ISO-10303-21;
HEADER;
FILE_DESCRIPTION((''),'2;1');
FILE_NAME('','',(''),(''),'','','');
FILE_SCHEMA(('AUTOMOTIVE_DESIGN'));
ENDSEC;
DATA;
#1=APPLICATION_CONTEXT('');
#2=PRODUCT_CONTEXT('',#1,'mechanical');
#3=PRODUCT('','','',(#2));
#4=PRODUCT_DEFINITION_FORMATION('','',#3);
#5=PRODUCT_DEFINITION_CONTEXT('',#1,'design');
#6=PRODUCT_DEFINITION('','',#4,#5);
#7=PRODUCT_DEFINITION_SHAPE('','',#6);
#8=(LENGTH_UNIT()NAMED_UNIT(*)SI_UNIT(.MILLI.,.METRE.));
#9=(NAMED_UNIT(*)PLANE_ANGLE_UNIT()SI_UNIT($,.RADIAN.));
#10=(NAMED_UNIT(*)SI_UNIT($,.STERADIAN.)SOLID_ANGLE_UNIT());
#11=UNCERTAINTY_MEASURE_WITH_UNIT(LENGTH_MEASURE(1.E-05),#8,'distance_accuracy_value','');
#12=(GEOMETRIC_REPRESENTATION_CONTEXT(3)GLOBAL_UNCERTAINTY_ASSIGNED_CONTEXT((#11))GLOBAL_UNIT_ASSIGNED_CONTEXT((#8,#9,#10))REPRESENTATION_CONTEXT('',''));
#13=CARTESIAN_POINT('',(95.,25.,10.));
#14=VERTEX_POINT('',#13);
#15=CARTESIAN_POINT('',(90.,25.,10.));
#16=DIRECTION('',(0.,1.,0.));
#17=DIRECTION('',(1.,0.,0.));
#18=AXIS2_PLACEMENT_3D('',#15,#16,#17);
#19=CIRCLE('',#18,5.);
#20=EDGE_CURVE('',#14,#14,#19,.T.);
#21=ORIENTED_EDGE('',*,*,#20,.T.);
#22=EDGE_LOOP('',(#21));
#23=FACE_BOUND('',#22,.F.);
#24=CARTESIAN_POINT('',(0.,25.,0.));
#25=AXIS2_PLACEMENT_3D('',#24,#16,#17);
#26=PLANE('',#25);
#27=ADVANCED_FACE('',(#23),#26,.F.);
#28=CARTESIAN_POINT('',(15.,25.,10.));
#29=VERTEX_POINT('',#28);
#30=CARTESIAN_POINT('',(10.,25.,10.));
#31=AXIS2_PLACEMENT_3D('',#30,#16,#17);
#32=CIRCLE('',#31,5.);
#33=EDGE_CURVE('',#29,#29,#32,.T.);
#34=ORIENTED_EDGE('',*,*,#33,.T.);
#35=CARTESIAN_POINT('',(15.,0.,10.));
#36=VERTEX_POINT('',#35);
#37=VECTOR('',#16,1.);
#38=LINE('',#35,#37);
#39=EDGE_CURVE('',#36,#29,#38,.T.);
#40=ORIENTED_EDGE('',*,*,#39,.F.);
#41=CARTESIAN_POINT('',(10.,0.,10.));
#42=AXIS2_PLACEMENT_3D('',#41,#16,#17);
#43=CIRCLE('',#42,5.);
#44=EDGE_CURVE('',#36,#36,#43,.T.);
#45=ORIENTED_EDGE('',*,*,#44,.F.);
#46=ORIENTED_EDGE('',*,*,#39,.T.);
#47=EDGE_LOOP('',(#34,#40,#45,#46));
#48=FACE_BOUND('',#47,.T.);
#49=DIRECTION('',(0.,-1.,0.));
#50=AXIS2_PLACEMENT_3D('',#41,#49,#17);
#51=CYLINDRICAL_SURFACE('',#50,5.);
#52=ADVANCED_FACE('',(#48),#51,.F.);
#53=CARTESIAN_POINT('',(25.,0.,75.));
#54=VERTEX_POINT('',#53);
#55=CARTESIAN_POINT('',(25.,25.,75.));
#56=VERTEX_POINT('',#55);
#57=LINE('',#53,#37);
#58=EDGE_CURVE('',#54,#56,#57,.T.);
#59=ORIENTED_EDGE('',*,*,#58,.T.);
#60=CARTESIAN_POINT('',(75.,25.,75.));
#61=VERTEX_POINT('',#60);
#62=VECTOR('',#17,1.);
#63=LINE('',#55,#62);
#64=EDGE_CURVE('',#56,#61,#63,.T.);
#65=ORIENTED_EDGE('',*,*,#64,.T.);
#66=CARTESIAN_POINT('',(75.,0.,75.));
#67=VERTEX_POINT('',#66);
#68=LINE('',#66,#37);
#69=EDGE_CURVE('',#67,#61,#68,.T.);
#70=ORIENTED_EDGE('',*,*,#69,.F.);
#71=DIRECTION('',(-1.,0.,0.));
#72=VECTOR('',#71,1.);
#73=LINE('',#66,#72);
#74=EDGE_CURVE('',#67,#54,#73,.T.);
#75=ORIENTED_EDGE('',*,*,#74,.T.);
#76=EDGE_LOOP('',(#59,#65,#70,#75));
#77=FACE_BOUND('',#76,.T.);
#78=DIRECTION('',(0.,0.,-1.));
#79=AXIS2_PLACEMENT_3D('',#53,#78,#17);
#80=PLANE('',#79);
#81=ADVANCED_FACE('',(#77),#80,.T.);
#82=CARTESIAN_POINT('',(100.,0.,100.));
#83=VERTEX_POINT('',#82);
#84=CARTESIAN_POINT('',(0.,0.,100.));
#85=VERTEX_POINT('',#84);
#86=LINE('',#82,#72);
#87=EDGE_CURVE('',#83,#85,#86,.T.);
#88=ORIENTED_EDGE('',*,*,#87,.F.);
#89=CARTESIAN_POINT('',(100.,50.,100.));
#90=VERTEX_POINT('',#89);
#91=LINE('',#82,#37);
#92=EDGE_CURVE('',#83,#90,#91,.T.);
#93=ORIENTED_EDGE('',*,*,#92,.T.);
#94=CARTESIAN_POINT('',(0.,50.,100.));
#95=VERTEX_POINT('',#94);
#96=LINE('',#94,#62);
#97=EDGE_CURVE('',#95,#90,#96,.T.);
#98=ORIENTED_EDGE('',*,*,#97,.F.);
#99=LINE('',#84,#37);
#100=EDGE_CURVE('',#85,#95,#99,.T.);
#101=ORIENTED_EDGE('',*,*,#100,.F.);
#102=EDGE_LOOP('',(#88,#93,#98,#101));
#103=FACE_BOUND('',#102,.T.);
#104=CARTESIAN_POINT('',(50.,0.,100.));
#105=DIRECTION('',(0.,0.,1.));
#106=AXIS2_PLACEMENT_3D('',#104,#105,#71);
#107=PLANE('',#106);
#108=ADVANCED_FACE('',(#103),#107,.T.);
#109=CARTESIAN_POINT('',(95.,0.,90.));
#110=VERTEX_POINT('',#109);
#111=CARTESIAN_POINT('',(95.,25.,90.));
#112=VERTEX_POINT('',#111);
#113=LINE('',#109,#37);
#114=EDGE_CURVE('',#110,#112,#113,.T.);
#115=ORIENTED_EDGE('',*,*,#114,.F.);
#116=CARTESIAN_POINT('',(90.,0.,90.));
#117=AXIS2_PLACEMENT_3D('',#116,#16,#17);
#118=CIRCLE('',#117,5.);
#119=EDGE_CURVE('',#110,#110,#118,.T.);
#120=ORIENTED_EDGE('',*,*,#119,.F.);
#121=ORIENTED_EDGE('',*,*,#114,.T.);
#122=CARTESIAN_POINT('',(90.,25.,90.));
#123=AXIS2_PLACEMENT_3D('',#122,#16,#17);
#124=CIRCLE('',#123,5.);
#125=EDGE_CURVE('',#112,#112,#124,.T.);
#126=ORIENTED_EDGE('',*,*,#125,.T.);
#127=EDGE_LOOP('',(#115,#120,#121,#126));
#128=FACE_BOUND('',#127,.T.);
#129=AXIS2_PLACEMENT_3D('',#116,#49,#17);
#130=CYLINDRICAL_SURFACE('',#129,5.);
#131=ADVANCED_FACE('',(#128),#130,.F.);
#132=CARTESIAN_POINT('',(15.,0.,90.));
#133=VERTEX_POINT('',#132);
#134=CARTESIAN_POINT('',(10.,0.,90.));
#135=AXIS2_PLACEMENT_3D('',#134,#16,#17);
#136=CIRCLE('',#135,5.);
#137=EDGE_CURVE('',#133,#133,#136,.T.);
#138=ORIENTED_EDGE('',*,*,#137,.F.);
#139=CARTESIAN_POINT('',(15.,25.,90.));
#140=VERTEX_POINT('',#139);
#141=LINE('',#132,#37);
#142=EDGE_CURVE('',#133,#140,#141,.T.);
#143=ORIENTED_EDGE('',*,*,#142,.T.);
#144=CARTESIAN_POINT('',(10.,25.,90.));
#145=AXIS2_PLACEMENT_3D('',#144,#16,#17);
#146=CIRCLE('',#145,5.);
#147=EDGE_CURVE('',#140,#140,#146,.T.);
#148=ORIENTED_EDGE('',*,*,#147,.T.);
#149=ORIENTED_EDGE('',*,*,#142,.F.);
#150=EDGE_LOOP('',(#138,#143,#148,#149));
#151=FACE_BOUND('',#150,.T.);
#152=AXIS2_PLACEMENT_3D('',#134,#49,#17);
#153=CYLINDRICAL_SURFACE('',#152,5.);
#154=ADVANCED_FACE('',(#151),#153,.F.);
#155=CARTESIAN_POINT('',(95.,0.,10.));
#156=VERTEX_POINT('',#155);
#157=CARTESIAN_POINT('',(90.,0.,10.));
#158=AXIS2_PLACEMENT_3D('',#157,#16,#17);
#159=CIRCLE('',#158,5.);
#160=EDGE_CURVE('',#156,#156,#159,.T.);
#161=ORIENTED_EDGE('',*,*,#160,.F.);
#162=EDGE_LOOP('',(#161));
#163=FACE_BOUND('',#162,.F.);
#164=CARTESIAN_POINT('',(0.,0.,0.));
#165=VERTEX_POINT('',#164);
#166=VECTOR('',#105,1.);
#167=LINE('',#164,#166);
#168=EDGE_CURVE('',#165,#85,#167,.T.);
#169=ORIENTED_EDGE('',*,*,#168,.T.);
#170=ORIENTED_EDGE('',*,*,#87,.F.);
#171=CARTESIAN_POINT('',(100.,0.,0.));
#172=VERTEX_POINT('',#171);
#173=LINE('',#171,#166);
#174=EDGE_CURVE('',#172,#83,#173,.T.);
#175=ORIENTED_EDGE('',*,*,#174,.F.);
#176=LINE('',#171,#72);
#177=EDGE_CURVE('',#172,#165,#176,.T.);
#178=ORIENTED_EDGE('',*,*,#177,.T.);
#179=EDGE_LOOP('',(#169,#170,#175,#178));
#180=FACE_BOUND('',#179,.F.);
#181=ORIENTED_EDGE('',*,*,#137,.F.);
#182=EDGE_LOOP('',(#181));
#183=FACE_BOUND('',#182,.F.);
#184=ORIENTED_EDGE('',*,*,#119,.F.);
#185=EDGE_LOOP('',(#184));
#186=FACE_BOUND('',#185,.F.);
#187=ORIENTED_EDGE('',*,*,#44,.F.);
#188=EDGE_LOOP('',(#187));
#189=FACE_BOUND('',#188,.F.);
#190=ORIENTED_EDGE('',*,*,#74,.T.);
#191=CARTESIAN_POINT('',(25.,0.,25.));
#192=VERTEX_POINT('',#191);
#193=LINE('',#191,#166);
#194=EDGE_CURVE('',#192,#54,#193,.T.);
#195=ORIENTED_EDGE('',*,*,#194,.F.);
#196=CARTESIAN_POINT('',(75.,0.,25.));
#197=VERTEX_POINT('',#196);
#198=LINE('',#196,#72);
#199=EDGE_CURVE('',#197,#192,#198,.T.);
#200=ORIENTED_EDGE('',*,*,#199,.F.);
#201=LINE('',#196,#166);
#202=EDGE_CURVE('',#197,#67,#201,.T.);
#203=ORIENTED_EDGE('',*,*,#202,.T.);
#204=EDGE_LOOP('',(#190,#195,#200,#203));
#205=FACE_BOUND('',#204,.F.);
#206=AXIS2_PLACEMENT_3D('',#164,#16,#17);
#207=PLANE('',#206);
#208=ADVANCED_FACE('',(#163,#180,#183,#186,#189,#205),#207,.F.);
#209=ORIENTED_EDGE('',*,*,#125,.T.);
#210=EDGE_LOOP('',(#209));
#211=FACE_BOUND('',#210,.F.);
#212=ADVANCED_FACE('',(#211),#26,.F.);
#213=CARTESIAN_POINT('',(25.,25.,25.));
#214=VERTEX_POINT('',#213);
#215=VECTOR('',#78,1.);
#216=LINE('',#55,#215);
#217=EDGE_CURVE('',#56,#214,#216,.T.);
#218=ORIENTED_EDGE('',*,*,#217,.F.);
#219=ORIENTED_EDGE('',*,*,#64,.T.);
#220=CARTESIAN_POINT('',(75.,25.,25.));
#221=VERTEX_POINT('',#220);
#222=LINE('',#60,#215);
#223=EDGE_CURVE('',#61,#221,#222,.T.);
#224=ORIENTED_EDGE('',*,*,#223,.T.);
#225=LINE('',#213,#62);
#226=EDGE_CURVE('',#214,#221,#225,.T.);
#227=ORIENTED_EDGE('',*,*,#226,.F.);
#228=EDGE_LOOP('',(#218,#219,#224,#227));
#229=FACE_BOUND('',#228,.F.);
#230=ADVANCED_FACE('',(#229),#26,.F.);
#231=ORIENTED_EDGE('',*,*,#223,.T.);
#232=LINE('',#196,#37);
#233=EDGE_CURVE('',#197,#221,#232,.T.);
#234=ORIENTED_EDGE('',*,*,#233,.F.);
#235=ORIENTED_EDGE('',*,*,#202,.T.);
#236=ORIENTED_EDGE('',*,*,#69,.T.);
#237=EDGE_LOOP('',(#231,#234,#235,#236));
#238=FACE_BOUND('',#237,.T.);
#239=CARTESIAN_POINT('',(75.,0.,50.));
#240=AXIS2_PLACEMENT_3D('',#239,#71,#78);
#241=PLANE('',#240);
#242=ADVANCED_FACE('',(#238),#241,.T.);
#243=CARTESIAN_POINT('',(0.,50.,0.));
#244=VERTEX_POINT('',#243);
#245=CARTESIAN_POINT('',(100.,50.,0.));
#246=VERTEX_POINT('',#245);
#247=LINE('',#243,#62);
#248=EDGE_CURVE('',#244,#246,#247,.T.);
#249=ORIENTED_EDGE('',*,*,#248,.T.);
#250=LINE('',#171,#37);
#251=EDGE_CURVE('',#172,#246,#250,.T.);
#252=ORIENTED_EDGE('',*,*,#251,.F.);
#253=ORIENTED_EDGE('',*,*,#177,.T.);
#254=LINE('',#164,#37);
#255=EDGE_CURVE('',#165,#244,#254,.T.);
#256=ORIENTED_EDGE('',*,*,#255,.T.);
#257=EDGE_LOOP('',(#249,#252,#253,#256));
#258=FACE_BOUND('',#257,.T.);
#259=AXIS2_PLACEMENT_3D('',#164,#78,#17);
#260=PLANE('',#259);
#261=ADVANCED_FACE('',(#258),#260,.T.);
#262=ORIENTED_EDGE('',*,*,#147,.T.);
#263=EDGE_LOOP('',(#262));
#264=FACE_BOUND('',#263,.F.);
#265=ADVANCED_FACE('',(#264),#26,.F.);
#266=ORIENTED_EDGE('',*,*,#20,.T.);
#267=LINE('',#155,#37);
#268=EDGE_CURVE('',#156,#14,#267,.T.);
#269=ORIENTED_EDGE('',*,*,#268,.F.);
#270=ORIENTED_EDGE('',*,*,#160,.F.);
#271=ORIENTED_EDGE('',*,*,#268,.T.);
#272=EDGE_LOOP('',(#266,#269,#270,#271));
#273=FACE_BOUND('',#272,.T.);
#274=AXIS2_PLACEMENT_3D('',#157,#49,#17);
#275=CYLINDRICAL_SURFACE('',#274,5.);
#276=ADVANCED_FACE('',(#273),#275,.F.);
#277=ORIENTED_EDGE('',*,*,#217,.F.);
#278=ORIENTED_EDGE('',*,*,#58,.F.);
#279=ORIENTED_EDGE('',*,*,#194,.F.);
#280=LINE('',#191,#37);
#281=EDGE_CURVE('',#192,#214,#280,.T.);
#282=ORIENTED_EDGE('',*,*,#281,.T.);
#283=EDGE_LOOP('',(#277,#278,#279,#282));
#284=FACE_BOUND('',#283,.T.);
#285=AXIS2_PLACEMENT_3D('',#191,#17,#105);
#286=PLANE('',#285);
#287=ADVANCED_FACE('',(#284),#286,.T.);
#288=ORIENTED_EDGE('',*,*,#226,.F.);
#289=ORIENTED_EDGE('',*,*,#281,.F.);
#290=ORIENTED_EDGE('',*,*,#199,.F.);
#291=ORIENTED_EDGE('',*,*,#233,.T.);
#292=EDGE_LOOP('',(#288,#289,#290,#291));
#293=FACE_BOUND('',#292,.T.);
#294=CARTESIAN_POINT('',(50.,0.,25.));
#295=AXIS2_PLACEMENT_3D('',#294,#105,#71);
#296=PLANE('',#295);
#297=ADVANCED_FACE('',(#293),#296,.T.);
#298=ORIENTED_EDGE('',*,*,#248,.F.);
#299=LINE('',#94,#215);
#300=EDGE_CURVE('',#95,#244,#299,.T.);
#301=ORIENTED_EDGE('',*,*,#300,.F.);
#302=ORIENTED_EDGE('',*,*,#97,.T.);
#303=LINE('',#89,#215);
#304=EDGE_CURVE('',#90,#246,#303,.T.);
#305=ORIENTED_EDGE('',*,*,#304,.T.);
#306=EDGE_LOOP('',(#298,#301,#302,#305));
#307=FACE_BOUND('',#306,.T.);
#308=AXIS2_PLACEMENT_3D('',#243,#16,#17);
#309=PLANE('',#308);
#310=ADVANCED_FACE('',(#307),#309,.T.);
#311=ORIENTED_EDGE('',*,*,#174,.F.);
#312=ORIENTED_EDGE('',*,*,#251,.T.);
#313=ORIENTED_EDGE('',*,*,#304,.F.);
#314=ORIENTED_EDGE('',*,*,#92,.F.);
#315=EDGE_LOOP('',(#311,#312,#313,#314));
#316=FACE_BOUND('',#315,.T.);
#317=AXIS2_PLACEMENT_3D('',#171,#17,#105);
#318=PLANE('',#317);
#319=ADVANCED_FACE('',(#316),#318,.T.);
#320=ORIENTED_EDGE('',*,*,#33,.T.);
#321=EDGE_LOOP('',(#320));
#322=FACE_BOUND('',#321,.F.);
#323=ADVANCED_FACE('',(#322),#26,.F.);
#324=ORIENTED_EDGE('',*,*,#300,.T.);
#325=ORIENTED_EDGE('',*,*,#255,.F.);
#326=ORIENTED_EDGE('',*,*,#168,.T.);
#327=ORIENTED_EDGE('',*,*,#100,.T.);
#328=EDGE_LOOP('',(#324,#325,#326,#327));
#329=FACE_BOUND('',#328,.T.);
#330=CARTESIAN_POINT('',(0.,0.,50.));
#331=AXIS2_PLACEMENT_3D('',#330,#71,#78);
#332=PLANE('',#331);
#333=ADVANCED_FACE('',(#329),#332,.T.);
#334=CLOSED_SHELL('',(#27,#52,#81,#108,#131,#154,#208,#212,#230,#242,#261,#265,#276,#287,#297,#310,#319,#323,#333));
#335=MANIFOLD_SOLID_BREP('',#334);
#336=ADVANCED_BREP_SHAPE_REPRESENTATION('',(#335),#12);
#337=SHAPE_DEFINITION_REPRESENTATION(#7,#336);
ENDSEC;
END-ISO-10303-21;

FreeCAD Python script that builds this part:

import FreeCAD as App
import Part
import Sketcher

V = App.Vector
Q = App.Units.Quantity

doc = App.newDocument("Part")
params = doc.addObject("Spreadsheet::Sheet", "Params")
for row, (alias, value) in enumerate([
    ("sketch1_width", "100 mm"),
    ("pad1_length", "50 mm"),
    ("sketch2_diameter", "10 mm"),
    ("sketch2_width", "50 mm"),
    ("pocket1_length", "25 mm"),
], start=1):
    params.set(f"A{row}", alias)
    params.set(f"B{row}", "=" + value)
    params.setAlias(f"B{row}", alias)

body = doc.addObject("PartDesign::Body", "Body")

# Sketch on XZ plane
sketch1 = doc.addObject("Sketcher::SketchObject", "Sketch")
body.addObject(sketch1)
sketch1.AttachmentSupport = (doc.XZ_Plane, [""])
sketch1.MapMode = "FlatFace"
sketch1.addGeometry(Part.LineSegment(V(0, 0, 0), V(0, 100, 0)), False)
sketch1.addGeometry(Part.LineSegment(V(0, 100, 0), V(100, 100, 0)), False)
sketch1.addGeometry(Part.LineSegment(V(100, 100, 0), V(100, 0, 0)), False)
sketch1.addGeometry(Part.LineSegment(V(100, 0, 0), V(0, 0, 0)), False)
sketch1.addConstraint(Sketcher.Constraint("Coincident", 0, 2, 1, 1))
sketch1.addConstraint(Sketcher.Constraint("Coincident", 1, 2, 2, 1))
sketch1.addConstraint(Sketcher.Constraint("Coincident", 2, 2, 3, 1))
sketch1.addConstraint(Sketcher.Constraint("Coincident", 3, 2, 0, 1))
sketch1.addConstraint(Sketcher.Constraint("Vertical", 0))
sketch1.addConstraint(Sketcher.Constraint("Horizontal", 1))
sketch1.addConstraint(Sketcher.Constraint("Vertical", 2))
sketch1.addConstraint(Sketcher.Constraint("Horizontal", 3))
sketch1.addConstraint(Sketcher.Constraint("Coincident", 3, 2, -1, 1))
sketch1.addConstraint(Sketcher.Constraint("Equal", 3, 0))
sketch1.addConstraint(Sketcher.Constraint("DistanceX", 1, 1, 1, 2, Q("100 mm")))
sketch1.setExpression("Constraints[10]", "Params.sketch1_width")
pad1 = doc.addObject("PartDesign::Pad", "Pad")
body.addObject(pad1)
pad1.Profile = sketch1
pad1.setExpression("Length", "Params.pad1_length")
pad1.Reversed = True

# Sketch on XZ plane
sketch2 = doc.addObject("Sketcher::SketchObject", "Sketch001")
body.addObject(sketch2)
sketch2.AttachmentSupport = (doc.XZ_Plane, [""])
sketch2.MapMode = "FlatFace"
sketch2.addGeometry(Part.LineSegment(V(25, 25, 0), V(25, 75, 0)), False)
sketch2.addGeometry(Part.LineSegment(V(25, 75, 0), V(75, 75, 0)), False)
sketch2.addGeometry(Part.LineSegment(V(75, 75, 0), V(75, 25, 0)), False)
sketch2.addGeometry(Part.LineSegment(V(75, 25, 0), V(25, 25, 0)), False)
sketch2.addGeometry(Part.Circle(V(10, 90, 0), V(0, 0, 1), 5), False)
sketch2.addGeometry(Part.Circle(V(90, 90, 0), V(0, 0, 1), 5), False)
sketch2.addGeometry(Part.Circle(V(90, 10, 0), V(0, 0, 1), 5), False)
sketch2.addGeometry(Part.Circle(V(10, 10, 0), V(0, 0, 1), 5), False)
sketch2.addConstraint(Sketcher.Constraint("Coincident", 0, 2, 1, 1))
sketch2.addConstraint(Sketcher.Constraint("Coincident", 1, 2, 2, 1))
sketch2.addConstraint(Sketcher.Constraint("Coincident", 2, 2, 3, 1))
sketch2.addConstraint(Sketcher.Constraint("Coincident", 3, 2, 0, 1))
sketch2.addConstraint(Sketcher.Constraint("Vertical", 0))
sketch2.addConstraint(Sketcher.Constraint("Horizontal", 1))
sketch2.addConstraint(Sketcher.Constraint("Vertical", 2))
sketch2.addConstraint(Sketcher.Constraint("Horizontal", 3))
sketch2.addConstraint(Sketcher.Constraint("Equal", 4, 5))
sketch2.addConstraint(Sketcher.Constraint("Equal", 5, 6))
sketch2.addConstraint(Sketcher.Constraint("Equal", 6, 7))
sketch2.addConstraint(Sketcher.Constraint("Horizontal", 4, 3, 5, 3))
sketch2.addConstraint(Sketcher.Constraint("Horizontal", 6, 3, 7, 3))
sketch2.addConstraint(Sketcher.Constraint("Vertical", 5, 3, 6, 3))
sketch2.addConstraint(Sketcher.Constraint("Vertical", 4, 3, 7, 3))
sketch2.addConstraint(Sketcher.Constraint("Equal", 3, 0))
sketch2.addConstraint(Sketcher.Constraint("Diameter", 4, Q("10 mm")))
sketch2.addConstraint(Sketcher.Constraint("DistanceX", 1, 1, 1, 2, Q("50 mm")))
sketch2.addConstraint(Sketcher.Constraint("DistanceX", -1, 1, 4, 3, Q("10 mm")))
sketch2.addConstraint(Sketcher.Constraint("DistanceY", -1, 1, 6, 3, Q("10 mm")))
sketch2.addConstraint(Sketcher.Constraint("DistanceX", -1, 1, 0, 2, Q("25 mm")))
sketch2.addConstraint(Sketcher.Constraint("DistanceY", -1, 1, 2, 2, Q("25 mm")))
sketch2.addConstraint(Sketcher.Constraint("DistanceY", -1, 1, 4, 3, Q("90 mm")))
sketch2.addConstraint(Sketcher.Constraint("DistanceX", -1, 1, 5, 3, Q("90 mm")))
sketch2.setExpression("Constraints[16]", "Params.sketch2_diameter")
sketch2.setExpression("Constraints[17]", "Params.sketch2_width")
pocket1 = doc.addObject("PartDesign::Pocket", "Pocket")
body.addObject(pocket1)
pocket1.Profile = sketch2
pocket1.setExpression("Length", "Params.pocket1_length")

doc.recompute()
